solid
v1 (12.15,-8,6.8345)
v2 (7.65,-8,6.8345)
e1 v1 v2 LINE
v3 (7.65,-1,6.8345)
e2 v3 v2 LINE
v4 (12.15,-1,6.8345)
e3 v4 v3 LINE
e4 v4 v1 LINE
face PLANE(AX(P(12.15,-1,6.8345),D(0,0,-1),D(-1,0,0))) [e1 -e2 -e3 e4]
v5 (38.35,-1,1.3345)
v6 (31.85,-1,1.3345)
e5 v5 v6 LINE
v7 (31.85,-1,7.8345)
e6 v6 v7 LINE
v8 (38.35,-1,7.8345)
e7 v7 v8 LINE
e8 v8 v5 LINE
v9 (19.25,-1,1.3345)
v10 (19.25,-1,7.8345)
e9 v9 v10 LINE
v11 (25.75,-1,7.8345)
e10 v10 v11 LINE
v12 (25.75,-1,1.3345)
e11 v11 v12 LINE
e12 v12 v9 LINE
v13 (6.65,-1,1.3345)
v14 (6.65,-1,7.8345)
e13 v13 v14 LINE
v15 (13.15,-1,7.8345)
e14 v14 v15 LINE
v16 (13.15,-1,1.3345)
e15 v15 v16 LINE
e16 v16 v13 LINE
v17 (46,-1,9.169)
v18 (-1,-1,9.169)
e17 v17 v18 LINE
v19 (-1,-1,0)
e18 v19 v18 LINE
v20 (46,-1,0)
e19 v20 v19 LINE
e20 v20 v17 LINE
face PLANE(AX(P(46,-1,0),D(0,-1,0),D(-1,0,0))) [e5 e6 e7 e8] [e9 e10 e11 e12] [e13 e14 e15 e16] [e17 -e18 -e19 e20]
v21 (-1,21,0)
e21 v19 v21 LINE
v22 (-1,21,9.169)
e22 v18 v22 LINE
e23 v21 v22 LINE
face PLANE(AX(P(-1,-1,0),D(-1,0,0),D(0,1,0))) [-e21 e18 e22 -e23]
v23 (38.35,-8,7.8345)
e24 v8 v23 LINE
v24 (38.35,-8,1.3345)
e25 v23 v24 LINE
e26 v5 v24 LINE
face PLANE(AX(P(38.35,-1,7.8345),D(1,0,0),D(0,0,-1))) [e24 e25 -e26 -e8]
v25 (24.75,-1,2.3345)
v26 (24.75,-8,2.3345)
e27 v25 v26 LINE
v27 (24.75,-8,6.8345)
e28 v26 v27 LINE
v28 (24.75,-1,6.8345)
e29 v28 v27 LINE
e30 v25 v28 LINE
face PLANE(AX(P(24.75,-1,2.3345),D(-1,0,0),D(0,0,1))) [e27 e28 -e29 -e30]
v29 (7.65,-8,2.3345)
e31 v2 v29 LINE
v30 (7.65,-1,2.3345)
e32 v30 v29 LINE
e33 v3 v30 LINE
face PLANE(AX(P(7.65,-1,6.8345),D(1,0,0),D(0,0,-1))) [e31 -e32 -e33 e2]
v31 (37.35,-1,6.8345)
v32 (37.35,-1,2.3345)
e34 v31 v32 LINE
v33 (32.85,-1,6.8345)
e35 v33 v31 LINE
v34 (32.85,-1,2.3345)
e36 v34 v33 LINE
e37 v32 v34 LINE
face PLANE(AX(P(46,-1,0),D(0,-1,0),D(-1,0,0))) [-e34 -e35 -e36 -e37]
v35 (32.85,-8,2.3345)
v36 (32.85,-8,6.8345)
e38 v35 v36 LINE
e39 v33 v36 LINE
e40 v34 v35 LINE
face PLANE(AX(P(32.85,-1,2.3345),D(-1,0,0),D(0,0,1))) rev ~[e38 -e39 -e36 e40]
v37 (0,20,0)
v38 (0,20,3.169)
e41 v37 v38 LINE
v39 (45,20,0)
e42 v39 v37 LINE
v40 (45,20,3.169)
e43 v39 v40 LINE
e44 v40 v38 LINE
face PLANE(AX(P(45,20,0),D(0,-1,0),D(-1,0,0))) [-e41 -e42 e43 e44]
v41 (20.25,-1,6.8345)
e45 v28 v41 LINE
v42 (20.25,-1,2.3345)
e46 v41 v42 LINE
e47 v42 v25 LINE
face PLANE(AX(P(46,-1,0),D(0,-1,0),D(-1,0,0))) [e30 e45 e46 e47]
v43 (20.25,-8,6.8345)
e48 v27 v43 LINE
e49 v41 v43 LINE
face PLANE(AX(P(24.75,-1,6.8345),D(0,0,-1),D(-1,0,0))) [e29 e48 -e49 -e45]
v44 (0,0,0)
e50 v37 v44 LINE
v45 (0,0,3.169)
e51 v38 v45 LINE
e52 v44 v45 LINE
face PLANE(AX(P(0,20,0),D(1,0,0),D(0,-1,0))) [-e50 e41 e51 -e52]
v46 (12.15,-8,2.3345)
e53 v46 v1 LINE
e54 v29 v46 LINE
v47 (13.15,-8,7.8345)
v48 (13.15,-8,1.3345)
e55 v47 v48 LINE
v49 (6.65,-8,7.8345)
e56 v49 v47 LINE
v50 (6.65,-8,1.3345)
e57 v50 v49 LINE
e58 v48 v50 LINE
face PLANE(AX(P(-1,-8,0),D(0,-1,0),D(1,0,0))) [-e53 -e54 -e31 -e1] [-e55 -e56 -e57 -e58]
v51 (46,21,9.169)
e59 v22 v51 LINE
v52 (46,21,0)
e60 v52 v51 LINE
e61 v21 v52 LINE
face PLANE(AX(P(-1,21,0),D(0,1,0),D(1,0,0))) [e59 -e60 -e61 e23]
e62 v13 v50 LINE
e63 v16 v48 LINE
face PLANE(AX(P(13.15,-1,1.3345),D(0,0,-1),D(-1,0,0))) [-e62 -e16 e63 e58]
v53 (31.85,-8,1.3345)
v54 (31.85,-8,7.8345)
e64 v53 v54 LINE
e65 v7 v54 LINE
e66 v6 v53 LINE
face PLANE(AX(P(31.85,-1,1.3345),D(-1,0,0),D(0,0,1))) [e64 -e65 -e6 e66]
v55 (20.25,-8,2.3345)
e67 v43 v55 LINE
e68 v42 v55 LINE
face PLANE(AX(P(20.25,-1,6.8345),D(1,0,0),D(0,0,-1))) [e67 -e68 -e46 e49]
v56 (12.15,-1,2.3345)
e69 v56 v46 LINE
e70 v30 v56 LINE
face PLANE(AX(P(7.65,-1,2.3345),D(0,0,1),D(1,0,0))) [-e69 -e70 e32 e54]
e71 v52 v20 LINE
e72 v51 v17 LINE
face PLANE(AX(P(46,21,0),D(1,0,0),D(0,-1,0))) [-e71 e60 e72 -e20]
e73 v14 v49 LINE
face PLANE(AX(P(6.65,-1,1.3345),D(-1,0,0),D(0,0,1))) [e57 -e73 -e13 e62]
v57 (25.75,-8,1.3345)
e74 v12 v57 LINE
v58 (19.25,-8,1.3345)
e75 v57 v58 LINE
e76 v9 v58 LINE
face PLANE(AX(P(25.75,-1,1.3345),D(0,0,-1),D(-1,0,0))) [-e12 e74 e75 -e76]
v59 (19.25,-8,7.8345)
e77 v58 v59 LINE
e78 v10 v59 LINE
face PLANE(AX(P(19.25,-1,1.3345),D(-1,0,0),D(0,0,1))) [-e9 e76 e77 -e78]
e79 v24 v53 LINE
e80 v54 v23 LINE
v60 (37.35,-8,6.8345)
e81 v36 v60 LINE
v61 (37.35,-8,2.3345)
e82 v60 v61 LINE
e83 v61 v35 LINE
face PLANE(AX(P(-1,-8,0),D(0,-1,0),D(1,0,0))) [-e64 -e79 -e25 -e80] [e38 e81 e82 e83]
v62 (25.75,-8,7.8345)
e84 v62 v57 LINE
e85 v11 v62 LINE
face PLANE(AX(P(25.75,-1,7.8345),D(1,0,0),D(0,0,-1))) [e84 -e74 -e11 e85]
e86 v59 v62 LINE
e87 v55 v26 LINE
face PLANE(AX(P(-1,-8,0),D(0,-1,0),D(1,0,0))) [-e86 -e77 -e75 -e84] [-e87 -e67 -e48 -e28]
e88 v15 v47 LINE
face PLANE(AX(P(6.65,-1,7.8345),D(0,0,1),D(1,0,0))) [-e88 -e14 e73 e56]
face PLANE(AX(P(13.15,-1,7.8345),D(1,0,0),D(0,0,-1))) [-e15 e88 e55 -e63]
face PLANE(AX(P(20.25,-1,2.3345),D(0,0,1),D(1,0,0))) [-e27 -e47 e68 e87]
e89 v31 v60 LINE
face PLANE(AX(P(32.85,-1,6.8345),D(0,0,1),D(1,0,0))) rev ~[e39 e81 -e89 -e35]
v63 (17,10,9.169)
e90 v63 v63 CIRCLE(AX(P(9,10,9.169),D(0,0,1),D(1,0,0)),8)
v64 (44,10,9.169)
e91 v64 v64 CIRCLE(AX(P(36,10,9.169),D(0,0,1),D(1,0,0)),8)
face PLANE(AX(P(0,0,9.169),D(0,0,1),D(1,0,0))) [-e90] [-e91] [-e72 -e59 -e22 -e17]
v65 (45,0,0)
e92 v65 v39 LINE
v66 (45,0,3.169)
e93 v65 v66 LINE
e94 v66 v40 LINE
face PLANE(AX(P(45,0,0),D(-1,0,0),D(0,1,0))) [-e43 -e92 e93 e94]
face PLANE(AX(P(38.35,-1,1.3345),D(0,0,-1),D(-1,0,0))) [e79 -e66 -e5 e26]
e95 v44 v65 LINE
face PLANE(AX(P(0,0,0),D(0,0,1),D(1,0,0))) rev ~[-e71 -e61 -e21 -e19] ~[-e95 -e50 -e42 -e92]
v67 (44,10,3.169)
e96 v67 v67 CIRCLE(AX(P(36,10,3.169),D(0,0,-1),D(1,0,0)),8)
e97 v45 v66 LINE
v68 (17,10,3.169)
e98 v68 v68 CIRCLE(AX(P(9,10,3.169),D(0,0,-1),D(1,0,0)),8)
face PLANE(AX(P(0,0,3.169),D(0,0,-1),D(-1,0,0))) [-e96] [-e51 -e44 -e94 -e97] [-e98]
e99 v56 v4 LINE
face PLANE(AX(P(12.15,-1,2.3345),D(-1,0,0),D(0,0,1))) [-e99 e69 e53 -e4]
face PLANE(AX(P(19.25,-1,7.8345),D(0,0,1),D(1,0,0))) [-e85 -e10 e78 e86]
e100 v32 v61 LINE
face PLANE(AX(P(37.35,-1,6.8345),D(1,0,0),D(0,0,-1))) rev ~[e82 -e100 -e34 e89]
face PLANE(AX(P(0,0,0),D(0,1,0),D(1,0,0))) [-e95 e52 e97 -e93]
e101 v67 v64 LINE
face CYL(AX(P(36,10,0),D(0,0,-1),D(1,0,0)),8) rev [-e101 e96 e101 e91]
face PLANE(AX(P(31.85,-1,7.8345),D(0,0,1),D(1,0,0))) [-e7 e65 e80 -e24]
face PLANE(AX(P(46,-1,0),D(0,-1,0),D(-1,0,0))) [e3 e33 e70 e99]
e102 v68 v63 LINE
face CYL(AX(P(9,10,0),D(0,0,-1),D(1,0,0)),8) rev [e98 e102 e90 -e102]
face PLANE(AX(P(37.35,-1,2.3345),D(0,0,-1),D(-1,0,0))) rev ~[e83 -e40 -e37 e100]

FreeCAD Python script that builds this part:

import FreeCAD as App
import Part
import Sketcher

doc = App.newDocument("Part")
params = doc.addObject("Spreadsheet::Sheet", "Params")
for row, (alias, value) in enumerate([
    ("sketch1_diameter", "16 mm"),
    ("sketch1_width", "47 mm"),
    ("sketch1_height", "22 mm"),
    ("pad1_length", "9.169 mm"),
    ("sketch2_width", "45 mm"),
    ("sketch2_height", "20 mm"),
    ("pocket1_length", "3.169 mm"),
    ("sketch3_width", "4.5 mm"),
    ("pad2_length", "7 mm"),
], start=1):
    params.set(f"A{row}", alias)
    params.set(f"B{row}", "=" + value)
    params.setAlias(f"B{row}", alias)

body = doc.addObject("PartDesign::Body", "Body")

# Sketch on XY plane
sketch1 = doc.addObject("Sketcher::SketchObject", "Sketch")
body.addObject(sketch1)
sketch1.AttachmentSupport = (doc.XY_Plane, [""])
sketch1.MapMode = "FlatFace"
sketch1.addGeometry([
    Part.LineSegment(App.Vector(46, 21, 0), App.Vector(-1, 21, 0)),  # 0
    Part.LineSegment(App.Vector(-1, 21, 0), App.Vector(-1, -1, 0)),  # 1
    Part.LineSegment(App.Vector(-1, -1, 0), App.Vector(46, -1, 0)),  # 2
    Part.LineSegment(App.Vector(46, -1, 0), App.Vector(46, 21, 0)),  # 3
    Part.Circle(App.Vector(9, 10, 0), App.Vector(0, 0, 1), 8),  # 4
    Part.Circle(App.Vector(36, 10, 0), App.Vector(0, 0, 1), 8),  # 5
], False)
sketch1.addConstraint([
    Sketcher.Constraint("Coincident", 0, 2, 1, 1),
    Sketcher.Constraint("Coincident", 1, 2, 2, 1),
    Sketcher.Constraint("Coincident", 2, 2, 3, 1),
    Sketcher.Constraint("Coincident", 3, 2, 0, 1),
    Sketcher.Constraint("Horizontal", 0),
    Sketcher.Constraint("Vertical", 1),
    Sketcher.Constraint("Horizontal", 2),
    Sketcher.Constraint("Vertical", 3),
    Sketcher.Constraint("Equal", 4, 5),
    Sketcher.Constraint("Horizontal", 4, 3, 5, 3),
    Sketcher.Constraint("Diameter", 4, 16.0),
    Sketcher.Constraint("DistanceX", -1, 1, 4, 3, 9.0),
    Sketcher.Constraint("DistanceY", -1, 1, 4, 3, 10.0),
    Sketcher.Constraint("DistanceX", 0, 2, -1, 1, 1.0),
    Sketcher.Constraint("DistanceY", 1, 2, -1, 1, 1.0),
    Sketcher.Constraint("DistanceX", 5, 3, 2, 2, 10.0),
    Sketcher.Constraint("DistanceX", 0, 2, 0, 1, 47.0),
    Sketcher.Constraint("DistanceY", 1, 2, 1, 1, 22.0),
])
sketch1.setExpression("Constraints[10]", "Params.sketch1_diameter")
sketch1.setExpression("Constraints[16]", "Params.sketch1_width")
sketch1.setExpression("Constraints[17]", "Params.sketch1_height")
pad1 = doc.addObject("PartDesign::Pad", "Pad")
body.addObject(pad1)
pad1.Profile = sketch1
pad1.setExpression("Length", "Params.pad1_length")

# Sketch on XY plane
sketch2 = doc.addObject("Sketcher::SketchObject", "Sketch001")
body.addObject(sketch2)
sketch2.AttachmentSupport = (doc.XY_Plane, [""])
sketch2.MapMode = "FlatFace"
sketch2.addGeometry([
    Part.LineSegment(App.Vector(45, 0, 0), App.Vector(0, 0, 0)),
    Part.LineSegment(App.Vector(0, 0, 0), App.Vector(0, 20, 0)),
    Part.LineSegment(App.Vector(0, 20, 0), App.Vector(45, 20, 0)),
    Part.LineSegment(App.Vector(45, 20, 0), App.Vector(45, 0, 0)),
], False)
sketch2.addConstraint([
    Sketcher.Constraint("Coincident", 0, 2, 1, 1),
    Sketcher.Constraint("Coincident", 1, 2, 2, 1),
    Sketcher.Constraint("Coincident", 2, 2, 3, 1),
    Sketcher.Constraint("Coincident", 3, 2, 0, 1),
    Sketcher.Constraint("Horizontal", 0),
    Sketcher.Constraint("Vertical", 1),
    Sketcher.Constraint("Horizontal", 2),
    Sketcher.Constraint("Vertical", 3),
    Sketcher.Constraint("Coincident", 0, 2, -1, 1),
    Sketcher.Constraint("DistanceX", 0, 2, 0, 1, 45.0),
    Sketcher.Constraint("DistanceY", 1, 1, 1, 2, 20.0),
])
sketch2.setExpression("Constraints[9]", "Params.sketch2_width")
sketch2.setExpression("Constraints[10]", "Params.sketch2_height")
pocket1 = doc.addObject("PartDesign::Pocket", "Pocket")
body.addObject(pocket1)
pocket1.Profile = sketch2
pocket1.setExpression("Length", "Params.pocket1_length")
pocket1.Reversed = True

# Sketch on XZ plane
sketch3 = doc.addObject("Sketcher::SketchObject", "Sketch002")
body.addObject(sketch3)
sketch3.AttachmentSupport = (doc.XZ_Plane, [""])
sketch3.MapMode = "FlatFace"
sketch3.AttachmentOffset = App.Placement(App.Vector(0, 0, 1), App.Rotation())
sketch3.addGeometry([
    Part.LineSegment(App.Vector(13.15, 7.8345, 0), App.Vector(6.65, 7.8345, 0)),  # 0
    Part.LineSegment(App.Vector(6.65, 7.8345, 0), App.Vector(6.65, 1.3345, 0)),  # 1
    Part.LineSegment(App.Vector(6.65, 1.3345, 0), App.Vector(13.15, 1.3345, 0)),  # 2
    Part.LineSegment(App.Vector(13.15, 1.3345, 0), App.Vector(13.15, 7.8345, 0)),  # 3
    Part.LineSegment(App.Vector(12.15, 2.3345, 0), App.Vector(7.65, 2.3345, 0)),  # 4
    Part.LineSegment(App.Vector(7.65, 2.3345, 0), App.Vector(7.65, 6.8345, 0)),  # 5
    Part.LineSegment(App.Vector(7.65, 6.8345, 0), App.Vector(12.15, 6.8345, 0)),  # 6
    Part.LineSegment(App.Vector(12.15, 6.8345, 0), App.Vector(12.15, 2.3345, 0)),  # 7
    Part.LineSegment(App.Vector(19.25, 1.3345, 0), App.Vector(25.75, 1.3345, 0)),  # 8
    Part.LineSegment(App.Vector(25.75, 1.3345, 0), App.Vector(25.75, 7.8345, 0)),  # 9
    Part.LineSegment(App.Vector(25.75, 7.8345, 0), App.Vector(19.25, 7.8345, 0)),  # 10
    Part.LineSegment(App.Vector(19.25, 7.8345, 0), App.Vector(19.25, 1.3345, 0)),  # 11
    Part.LineSegment(App.Vector(24.75, 2.3345, 0), App.Vector(20.25, 2.3345, 0)),  # 12
    Part.LineSegment(App.Vector(20.25, 2.3345, 0), App.Vector(20.25, 6.8345, 0)),  # 13
    Part.LineSegment(App.Vector(20.25, 6.8345, 0), App.Vector(24.75, 6.8345, 0)),  # 14
    Part.LineSegment(App.Vector(24.75, 6.8345, 0), App.Vector(24.75, 2.3345, 0)),  # 15
    Part.LineSegment(App.Vector(31.85, 1.3345, 0), App.Vector(38.35, 1.3345, 0)),  # 16
    Part.LineSegment(App.Vector(38.35, 1.3345, 0), App.Vector(38.35, 7.8345, 0)),  # 17
    Part.LineSegment(App.Vector(38.35, 7.8345, 0), App.Vector(31.85, 7.8345, 0)),  # 18
    Part.LineSegment(App.Vector(31.85, 7.8345, 0), App.Vector(31.85, 1.3345, 0)),  # 19
    Part.LineSegment(App.Vector(37.35, 6.8345, 0), App.Vector(37.35, 2.3345, 0)),  # 20
    Part.LineSegment(App.Vector(37.35, 2.3345, 0), App.Vector(32.85, 2.3345, 0)),  # 21
    Part.LineSegment(App.Vector(32.85, 2.3345, 0), App.Vector(32.85, 6.8345, 0)),  # 22
    Part.LineSegment(App.Vector(32.85, 6.8345, 0), App.Vector(37.35, 6.8345, 0)),  # 23
], False)
sketch3.addConstraint([
    Sketcher.Constraint("Coincident", 0, 2, 1, 1),
    Sketcher.Constraint("Coincident", 1, 2, 2, 1),
    Sketcher.Constraint("Coincident", 2, 2, 3, 1),
    Sketcher.Constraint("Coincident", 3, 2, 0, 1),
    Sketcher.Constraint("Coincident", 4, 2, 5, 1),
    Sketcher.Constraint("Coincident", 5, 2, 6, 1),
    Sketcher.Constraint("Coincident", 6, 2, 7, 1),
    Sketcher.Constraint("Coincident", 7, 2, 4, 1),
    Sketcher.Constraint("Coincident", 8, 2, 9, 1),
    Sketcher.Constraint("Coincident", 9, 2, 10, 1),
    Sketcher.Constraint("Coincident", 10, 2, 11, 1),
    Sketcher.Constraint("Coincident", 11, 2, 8, 1),
    Sketcher.Constraint("Coincident", 12, 2, 13, 1),
    Sketcher.Constraint("Coincident", 13, 2, 14, 1),
    Sketcher.Constraint("Coincident", 14, 2, 15, 1),
    Sketcher.Constraint("Coincident", 15, 2, 12, 1),
    Sketcher.Constraint("Coincident", 16, 2, 17, 1),
    Sketcher.Constraint("Coincident", 17, 2, 18, 1),
    Sketcher.Constraint("Coincident", 18, 2, 19, 1),
    Sketcher.Constraint("Coincident", 19, 2, 16, 1),
    Sketcher.Constraint("Coincident", 20, 2, 21, 1),
    Sketcher.Constraint("Coincident", 21, 2, 22, 1),
    Sketcher.Constraint("Coincident", 22, 2, 23, 1),
    Sketcher.Constraint("Coincident", 23, 2, 20, 1),
    Sketcher.Constraint("Horizontal", 0),
    Sketcher.Constraint("Vertical", 1),
    Sketcher.Constraint("Horizontal", 2),
    Sketcher.Constraint("Vertical", 3),
    Sketcher.Constraint("Horizontal", 4),
    Sketcher.Constraint("Vertical", 5),
    Sketcher.Constraint("Horizontal", 6),
    Sketcher.Constraint("Vertical", 7),
    Sketcher.Constraint("Horizontal", 8),
    Sketcher.Constraint("Vertical", 9),
    Sketcher.Constraint("Horizontal", 10),
    Sketcher.Constraint("Vertical", 11),
    Sketcher.Constraint("Horizontal", 12),
    Sketcher.Constraint("Vertical", 13),
    Sketcher.Constraint("Horizontal", 14),
    Sketcher.Constraint("Vertical", 15),
    Sketcher.Constraint("Horizontal", 16),
    Sketcher.Constraint("Vertical", 17),
    Sketcher.Constraint("Horizontal", 18),
    Sketcher.Constraint("Vertical", 19),
    Sketcher.Constraint("Vertical", 20),
    Sketcher.Constraint("Horizontal", 21),
    Sketcher.Constraint("Vertical", 22),
    Sketcher.Constraint("Horizontal", 23),
    Sketcher.Constraint("Horizontal", 2, 2, 8, 2),
    Sketcher.Constraint("Horizontal", 3, 2, 9, 2),
    Sketcher.Constraint("Horizontal", 7, 2, 12, 2),
    Sketcher.Constraint("Horizontal", 6, 2, 13, 2),
    Sketcher.Constraint("Horizontal", 11, 2, 16, 2),
    Sketcher.Constraint("Horizontal", 10, 2, 17, 2),
    Sketcher.Constraint("Horizontal", 15, 2, 20, 2),
    Sketcher.Constraint("Horizontal", 14, 2, 22, 2),
    Sketcher.Constraint("Equal", 2, 8),
    Sketcher.Constraint("Equal", 6, 12),
    Sketcher.Constraint("Equal", 10, 16),
    Sketcher.Constraint("Equal", 14, 21),
    Sketcher.Constraint("Equal", 18, 1),
    Sketcher.Constraint("Equal", 23, 5),
    Sketcher.Constraint("DistanceX", 4, 2, 4, 1, 4.5),
    Sketcher.Constraint("DistanceX", 1, 2, 4, 2, 1.0),
    Sketcher.Constraint("DistanceY", 1, 2, 4, 2, 1.0),
    Sketcher.Constraint("DistanceY", 5, 2, 0, 2, 1.0),
    Sketcher.Constraint("DistanceX", 11, 2, 12, 2, 1.0),
    Sketcher.Constraint("DistanceX", 20, 2, 16, 2, 1.0),
    Sketcher.Constraint("DistanceX", 2, 2, 8, 2, 12.6),
    Sketcher.Constraint("DistanceX", 8, 2, 16, 2, 12.6),
    Sketcher.Constraint("DistanceX", -1, 1, 0, 2, 6.65),
    Sketcher.Constraint("DistanceY", -1, 1, 0, 2, 7.8345),
])
sketch3.setExpression("Constraints[62]", "Params.sketch3_width")
pad2 = doc.addObject("PartDesign::Pad", "Pad001")
body.addObject(pad2)
pad2.Profile = sketch3
pad2.setExpression("Length", "Params.pad2_length")

doc.recompute()
